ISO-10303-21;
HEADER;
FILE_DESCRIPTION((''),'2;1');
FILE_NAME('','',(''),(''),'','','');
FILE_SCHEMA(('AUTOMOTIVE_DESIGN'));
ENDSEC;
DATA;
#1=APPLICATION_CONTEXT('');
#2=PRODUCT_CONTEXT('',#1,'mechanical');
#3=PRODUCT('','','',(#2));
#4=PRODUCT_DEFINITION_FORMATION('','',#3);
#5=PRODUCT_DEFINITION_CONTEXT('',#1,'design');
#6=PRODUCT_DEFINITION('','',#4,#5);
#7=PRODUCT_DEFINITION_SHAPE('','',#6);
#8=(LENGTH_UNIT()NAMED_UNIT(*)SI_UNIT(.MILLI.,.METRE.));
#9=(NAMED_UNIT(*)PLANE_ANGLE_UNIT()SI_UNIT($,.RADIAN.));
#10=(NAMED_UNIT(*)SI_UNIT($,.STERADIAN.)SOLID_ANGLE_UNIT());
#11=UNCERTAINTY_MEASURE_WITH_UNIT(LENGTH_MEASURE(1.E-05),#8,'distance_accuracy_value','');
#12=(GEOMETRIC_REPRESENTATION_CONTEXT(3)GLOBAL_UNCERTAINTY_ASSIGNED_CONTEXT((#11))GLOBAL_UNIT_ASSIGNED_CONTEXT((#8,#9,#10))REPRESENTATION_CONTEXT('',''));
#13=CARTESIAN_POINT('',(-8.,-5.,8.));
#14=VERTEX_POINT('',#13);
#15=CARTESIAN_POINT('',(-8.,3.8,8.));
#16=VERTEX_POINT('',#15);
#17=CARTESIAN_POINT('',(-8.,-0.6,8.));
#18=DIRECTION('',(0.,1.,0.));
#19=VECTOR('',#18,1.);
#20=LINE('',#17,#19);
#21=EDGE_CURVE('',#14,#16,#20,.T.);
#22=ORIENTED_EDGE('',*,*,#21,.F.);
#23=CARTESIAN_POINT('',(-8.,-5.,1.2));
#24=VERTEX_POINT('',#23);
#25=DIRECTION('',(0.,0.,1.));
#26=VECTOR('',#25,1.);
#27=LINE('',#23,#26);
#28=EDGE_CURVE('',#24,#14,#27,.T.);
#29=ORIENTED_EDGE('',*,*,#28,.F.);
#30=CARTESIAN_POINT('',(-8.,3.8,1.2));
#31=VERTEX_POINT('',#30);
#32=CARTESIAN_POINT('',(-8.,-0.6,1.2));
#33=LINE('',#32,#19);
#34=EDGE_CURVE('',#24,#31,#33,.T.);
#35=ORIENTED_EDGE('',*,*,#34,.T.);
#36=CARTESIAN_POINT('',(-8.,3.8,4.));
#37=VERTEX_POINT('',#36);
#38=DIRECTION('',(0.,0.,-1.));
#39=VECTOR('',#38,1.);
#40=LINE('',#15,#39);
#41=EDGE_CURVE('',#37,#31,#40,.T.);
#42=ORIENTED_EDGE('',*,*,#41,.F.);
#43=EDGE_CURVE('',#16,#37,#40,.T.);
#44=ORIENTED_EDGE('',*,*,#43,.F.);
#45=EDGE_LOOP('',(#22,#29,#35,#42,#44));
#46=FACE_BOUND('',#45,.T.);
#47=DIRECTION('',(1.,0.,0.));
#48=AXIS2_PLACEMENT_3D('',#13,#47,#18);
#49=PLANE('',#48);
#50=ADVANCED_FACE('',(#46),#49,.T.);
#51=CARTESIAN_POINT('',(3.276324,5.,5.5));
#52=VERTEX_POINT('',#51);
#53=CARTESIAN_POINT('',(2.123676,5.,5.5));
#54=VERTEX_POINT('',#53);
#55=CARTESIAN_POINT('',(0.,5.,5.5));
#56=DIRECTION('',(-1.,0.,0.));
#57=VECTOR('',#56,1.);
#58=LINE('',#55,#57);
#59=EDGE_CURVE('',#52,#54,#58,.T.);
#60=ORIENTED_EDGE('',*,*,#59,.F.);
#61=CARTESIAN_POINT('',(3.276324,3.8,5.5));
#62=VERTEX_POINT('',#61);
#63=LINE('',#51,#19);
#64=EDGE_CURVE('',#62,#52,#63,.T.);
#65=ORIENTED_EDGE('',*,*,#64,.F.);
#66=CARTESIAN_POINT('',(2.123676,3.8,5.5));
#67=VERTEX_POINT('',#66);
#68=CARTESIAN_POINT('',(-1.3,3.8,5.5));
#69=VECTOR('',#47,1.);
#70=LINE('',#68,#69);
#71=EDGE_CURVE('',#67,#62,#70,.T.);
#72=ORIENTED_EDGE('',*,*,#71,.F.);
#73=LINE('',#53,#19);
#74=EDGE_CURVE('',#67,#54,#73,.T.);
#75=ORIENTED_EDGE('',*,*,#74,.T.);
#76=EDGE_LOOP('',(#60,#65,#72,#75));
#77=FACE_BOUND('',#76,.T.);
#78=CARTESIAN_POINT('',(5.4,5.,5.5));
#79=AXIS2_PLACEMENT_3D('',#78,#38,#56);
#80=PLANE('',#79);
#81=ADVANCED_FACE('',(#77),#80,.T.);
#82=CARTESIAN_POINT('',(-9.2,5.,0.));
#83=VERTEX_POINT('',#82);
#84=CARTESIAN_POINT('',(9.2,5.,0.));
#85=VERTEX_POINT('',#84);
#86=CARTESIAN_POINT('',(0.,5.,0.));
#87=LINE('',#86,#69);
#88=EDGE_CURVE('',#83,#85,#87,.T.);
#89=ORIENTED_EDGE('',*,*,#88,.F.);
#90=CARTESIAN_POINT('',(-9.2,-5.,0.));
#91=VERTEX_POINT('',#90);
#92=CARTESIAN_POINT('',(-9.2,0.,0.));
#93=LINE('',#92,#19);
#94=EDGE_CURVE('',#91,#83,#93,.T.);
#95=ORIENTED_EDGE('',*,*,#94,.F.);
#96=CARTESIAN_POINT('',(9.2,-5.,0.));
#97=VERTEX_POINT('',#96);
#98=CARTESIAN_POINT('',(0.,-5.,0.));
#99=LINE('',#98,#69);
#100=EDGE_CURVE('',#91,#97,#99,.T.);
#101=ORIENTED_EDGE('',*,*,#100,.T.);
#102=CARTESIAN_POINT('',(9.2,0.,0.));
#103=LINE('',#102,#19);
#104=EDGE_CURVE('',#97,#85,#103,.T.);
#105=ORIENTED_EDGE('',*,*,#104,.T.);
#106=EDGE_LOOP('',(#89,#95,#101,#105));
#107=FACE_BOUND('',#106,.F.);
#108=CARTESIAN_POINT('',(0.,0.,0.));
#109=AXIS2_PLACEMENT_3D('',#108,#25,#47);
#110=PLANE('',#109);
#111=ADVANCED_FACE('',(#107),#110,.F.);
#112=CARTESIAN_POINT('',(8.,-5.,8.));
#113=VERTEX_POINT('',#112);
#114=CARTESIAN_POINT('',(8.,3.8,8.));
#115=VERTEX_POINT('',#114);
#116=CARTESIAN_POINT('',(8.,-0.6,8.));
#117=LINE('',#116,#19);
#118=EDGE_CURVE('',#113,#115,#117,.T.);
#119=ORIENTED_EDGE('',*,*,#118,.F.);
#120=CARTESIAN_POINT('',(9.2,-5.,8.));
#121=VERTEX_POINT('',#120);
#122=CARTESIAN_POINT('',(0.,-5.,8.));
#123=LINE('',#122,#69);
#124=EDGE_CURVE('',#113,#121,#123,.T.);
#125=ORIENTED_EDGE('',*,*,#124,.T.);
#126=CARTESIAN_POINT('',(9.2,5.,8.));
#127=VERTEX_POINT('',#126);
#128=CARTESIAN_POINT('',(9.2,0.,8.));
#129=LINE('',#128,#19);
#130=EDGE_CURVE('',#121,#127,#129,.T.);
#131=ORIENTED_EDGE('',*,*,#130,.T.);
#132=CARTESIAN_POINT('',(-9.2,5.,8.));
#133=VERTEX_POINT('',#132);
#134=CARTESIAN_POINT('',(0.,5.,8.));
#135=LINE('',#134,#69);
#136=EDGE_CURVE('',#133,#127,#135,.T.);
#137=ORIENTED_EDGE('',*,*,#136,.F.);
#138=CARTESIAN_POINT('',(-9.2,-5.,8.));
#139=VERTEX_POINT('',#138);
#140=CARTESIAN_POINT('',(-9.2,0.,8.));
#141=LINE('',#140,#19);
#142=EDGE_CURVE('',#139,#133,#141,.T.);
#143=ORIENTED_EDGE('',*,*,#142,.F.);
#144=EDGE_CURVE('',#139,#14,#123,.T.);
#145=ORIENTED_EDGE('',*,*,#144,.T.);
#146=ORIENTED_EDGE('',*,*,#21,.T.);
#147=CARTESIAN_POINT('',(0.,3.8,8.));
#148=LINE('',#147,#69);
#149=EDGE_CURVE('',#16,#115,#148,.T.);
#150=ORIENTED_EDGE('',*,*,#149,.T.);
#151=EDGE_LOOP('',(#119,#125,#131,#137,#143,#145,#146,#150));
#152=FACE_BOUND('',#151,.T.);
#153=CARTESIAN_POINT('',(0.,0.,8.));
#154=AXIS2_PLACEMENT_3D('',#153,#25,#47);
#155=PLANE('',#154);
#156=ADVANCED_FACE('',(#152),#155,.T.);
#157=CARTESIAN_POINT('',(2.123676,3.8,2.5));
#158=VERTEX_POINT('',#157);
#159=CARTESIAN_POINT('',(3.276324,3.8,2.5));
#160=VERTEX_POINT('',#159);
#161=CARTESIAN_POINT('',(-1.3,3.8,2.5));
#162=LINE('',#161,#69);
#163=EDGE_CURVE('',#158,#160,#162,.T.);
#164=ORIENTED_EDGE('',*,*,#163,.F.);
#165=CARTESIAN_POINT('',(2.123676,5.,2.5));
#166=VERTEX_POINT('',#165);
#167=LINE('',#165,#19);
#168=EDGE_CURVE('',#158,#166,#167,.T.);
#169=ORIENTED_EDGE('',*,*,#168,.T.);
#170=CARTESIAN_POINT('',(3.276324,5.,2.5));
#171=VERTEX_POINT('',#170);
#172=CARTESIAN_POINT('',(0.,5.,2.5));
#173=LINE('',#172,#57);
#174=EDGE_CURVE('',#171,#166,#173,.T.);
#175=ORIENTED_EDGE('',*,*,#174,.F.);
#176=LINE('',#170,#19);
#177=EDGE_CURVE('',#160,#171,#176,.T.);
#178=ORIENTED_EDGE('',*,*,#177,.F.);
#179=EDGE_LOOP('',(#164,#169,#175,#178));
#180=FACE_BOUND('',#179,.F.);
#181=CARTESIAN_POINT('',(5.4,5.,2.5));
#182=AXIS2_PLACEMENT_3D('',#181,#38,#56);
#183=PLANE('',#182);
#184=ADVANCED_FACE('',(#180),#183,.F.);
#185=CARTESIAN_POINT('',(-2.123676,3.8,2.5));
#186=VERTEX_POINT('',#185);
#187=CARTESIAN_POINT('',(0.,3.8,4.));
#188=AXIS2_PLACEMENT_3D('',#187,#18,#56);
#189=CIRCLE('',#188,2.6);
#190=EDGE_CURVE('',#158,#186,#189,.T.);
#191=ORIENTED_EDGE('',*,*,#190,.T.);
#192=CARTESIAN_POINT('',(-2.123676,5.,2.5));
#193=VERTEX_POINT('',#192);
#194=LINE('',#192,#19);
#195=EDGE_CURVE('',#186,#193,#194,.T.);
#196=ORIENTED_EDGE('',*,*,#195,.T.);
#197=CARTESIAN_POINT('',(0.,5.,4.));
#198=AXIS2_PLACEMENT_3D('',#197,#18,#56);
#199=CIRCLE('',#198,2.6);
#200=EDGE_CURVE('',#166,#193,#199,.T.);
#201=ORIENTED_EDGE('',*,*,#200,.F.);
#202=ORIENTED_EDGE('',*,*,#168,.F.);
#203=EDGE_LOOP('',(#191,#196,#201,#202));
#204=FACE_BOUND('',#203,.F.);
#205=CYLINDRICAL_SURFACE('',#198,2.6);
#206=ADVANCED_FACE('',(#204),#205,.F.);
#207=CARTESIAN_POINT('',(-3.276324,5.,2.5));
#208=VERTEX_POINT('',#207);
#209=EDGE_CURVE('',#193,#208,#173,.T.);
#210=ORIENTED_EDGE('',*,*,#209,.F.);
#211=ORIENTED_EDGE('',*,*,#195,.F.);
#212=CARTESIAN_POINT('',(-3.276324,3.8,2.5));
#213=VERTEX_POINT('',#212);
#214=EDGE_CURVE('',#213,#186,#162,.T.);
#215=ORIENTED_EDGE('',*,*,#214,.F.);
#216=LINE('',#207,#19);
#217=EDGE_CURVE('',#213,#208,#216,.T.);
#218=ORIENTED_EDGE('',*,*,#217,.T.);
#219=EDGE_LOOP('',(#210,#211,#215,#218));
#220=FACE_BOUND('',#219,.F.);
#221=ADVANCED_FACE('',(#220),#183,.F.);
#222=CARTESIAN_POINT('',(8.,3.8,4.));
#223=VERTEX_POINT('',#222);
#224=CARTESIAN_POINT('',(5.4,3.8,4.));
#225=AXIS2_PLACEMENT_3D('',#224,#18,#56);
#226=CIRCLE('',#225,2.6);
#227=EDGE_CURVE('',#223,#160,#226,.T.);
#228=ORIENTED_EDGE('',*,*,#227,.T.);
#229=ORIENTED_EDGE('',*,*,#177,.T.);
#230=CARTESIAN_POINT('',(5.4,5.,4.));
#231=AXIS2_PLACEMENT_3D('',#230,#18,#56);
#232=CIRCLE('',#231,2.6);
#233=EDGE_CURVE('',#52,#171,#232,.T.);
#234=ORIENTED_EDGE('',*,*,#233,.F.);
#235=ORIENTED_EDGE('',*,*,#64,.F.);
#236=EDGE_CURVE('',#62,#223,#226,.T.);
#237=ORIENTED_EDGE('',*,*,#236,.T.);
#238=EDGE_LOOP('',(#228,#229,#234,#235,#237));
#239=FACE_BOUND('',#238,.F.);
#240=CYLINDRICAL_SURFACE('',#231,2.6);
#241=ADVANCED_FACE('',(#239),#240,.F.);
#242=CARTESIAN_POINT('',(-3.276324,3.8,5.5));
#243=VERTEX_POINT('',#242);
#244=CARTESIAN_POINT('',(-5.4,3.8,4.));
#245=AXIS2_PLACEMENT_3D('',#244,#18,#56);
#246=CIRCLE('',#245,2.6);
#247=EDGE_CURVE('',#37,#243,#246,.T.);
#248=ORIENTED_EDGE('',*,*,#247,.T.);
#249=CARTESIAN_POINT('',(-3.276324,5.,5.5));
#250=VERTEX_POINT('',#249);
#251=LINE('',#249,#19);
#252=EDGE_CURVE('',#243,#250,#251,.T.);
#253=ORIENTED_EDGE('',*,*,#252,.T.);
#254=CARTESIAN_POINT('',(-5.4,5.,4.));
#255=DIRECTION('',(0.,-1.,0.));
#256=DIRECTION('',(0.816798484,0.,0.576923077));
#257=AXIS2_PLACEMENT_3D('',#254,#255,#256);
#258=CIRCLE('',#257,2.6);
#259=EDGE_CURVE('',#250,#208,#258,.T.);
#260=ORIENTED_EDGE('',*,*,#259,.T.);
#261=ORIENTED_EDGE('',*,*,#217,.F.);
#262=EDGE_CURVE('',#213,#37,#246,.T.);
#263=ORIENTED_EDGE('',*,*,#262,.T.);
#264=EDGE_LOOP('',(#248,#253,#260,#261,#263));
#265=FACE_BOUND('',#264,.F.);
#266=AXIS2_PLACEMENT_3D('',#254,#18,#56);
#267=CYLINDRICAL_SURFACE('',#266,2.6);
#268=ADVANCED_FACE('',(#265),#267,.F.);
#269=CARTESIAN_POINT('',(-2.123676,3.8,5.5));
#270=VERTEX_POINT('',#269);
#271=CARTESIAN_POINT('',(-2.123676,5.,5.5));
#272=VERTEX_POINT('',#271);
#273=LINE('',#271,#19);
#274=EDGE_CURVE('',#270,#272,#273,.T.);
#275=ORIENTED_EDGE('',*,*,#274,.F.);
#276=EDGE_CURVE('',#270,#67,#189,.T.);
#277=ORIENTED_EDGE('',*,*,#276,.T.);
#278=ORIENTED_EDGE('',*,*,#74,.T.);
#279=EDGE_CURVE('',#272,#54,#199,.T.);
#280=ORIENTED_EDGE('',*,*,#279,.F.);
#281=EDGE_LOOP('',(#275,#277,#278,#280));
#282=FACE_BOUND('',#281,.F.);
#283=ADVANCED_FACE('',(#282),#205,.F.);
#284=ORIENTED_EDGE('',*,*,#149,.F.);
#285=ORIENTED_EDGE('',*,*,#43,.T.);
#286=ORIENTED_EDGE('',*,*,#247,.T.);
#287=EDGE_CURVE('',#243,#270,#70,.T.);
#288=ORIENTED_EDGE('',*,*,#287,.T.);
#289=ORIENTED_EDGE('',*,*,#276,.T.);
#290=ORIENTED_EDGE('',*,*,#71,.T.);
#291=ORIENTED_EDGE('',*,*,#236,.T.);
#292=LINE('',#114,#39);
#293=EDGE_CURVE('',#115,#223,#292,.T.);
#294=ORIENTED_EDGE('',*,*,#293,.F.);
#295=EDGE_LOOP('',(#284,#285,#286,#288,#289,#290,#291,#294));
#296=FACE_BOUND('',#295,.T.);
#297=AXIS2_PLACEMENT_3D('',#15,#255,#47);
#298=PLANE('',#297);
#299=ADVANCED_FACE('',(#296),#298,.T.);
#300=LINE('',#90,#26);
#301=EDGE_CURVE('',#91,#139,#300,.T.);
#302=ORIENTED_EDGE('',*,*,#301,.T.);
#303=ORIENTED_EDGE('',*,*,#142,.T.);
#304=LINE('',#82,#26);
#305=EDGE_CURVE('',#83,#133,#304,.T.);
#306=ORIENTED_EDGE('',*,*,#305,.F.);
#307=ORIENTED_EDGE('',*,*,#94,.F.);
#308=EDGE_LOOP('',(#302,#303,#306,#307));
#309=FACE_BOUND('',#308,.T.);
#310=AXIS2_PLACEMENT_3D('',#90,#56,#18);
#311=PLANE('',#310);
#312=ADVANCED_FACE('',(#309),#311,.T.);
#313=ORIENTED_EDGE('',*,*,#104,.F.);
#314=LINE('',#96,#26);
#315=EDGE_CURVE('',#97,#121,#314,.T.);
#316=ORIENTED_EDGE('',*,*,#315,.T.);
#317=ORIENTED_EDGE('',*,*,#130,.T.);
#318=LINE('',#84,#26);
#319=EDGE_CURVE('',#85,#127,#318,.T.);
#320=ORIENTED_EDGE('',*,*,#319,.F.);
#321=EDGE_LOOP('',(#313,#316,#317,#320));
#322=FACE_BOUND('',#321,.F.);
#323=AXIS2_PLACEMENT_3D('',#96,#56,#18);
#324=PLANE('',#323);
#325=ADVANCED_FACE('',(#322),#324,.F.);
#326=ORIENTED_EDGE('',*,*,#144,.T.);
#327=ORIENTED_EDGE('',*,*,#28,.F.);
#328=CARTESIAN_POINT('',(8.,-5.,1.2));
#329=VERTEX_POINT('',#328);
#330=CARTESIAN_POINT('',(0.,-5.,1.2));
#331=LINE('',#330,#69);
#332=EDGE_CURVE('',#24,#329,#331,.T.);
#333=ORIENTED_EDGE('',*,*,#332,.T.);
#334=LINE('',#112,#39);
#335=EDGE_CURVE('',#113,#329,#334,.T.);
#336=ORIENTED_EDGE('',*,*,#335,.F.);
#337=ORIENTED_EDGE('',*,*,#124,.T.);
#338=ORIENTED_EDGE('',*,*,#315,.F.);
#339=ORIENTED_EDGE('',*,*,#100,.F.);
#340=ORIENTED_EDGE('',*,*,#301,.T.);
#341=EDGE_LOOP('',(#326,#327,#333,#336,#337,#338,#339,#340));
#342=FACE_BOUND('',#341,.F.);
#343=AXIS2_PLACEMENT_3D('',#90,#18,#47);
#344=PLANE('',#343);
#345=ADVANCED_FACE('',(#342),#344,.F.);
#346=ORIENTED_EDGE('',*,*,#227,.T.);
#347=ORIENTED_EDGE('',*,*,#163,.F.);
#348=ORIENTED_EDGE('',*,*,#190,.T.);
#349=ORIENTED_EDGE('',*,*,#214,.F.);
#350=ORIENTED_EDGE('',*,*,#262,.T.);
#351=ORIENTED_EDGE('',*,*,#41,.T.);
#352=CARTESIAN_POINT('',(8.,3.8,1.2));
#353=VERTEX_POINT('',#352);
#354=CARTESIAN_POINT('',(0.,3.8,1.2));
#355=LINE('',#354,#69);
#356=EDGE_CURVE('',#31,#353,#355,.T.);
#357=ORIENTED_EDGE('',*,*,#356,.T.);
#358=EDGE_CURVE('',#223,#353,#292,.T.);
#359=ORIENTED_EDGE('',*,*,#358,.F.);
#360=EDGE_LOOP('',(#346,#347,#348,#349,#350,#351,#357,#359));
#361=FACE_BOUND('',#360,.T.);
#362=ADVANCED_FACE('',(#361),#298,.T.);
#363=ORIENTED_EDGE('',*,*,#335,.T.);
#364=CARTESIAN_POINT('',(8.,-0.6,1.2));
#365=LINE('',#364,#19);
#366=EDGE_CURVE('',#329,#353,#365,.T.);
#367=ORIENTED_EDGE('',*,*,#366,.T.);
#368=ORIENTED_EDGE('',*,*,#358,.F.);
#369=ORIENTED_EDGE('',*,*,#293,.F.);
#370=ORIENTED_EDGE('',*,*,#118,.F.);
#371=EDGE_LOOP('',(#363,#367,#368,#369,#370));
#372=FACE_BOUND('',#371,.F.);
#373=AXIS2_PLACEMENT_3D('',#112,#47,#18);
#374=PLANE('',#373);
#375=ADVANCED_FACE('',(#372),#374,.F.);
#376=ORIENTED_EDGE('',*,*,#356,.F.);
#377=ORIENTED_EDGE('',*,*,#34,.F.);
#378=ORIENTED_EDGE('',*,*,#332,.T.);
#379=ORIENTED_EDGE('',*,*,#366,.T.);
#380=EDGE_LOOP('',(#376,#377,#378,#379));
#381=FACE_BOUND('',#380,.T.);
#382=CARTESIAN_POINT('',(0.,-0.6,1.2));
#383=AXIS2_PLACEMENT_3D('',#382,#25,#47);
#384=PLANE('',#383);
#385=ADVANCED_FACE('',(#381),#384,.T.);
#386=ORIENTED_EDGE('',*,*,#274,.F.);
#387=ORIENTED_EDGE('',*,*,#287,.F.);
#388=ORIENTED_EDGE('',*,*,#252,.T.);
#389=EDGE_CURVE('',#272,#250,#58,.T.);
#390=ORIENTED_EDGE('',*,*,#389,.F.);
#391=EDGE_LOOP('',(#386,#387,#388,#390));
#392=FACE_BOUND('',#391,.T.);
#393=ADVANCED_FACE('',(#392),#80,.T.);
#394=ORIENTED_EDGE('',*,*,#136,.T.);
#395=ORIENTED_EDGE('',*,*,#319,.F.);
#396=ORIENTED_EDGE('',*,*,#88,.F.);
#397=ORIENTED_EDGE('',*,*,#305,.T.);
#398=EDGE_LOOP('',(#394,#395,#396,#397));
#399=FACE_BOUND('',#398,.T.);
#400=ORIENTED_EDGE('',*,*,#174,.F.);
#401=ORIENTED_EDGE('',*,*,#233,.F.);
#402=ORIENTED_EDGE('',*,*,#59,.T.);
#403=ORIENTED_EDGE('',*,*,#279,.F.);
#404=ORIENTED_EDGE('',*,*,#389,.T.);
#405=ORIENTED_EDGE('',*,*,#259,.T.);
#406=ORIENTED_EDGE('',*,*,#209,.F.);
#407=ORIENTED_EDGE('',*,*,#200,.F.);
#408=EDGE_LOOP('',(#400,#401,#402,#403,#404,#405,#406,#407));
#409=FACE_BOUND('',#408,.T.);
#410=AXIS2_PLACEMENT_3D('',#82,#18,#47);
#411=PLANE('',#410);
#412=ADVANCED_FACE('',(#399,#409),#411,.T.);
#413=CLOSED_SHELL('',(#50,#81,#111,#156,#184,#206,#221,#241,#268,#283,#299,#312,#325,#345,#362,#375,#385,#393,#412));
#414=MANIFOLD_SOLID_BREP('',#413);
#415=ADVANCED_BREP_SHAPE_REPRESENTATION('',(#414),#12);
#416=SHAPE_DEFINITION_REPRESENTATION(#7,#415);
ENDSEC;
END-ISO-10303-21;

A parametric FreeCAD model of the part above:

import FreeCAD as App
import Part
import Sketcher

doc = App.newDocument("Part")
params = doc.addObject("Spreadsheet::Sheet", "Params")
for row, (alias, value) in enumerate([
    ("sketch1_height", "10 mm"),
    ("sketch1_width", "18.4 mm"),
    ("pad1_length", "8 mm"),
    ("sketch2_diameter", "5.2 mm"),
    ("pocket1_length", "10 mm"),
    ("sketch3_width", "16 mm"),
    ("sketch3_height", "8.8 mm"),
    ("pocket2_length", "6.8 mm"),
    ("sketch4_height", "3 mm"),
    ("sketch4_width", "10.8 mm"),
    ("pocket3_length", "5 mm"),
], start=1):
    params.set(f"A{row}", alias)
    params.set(f"B{row}", "=" + value)
    params.setAlias(f"B{row}", alias)

body = doc.addObject("PartDesign::Body", "Body")

# Sketch on XY plane
sketch1 = doc.addObject("Sketcher::SketchObject", "Sketch")
body.addObject(sketch1)
sketch1.AttachmentSupport = (doc.XY_Plane, [""])
sketch1.MapMode = "FlatFace"
sketch1.addGeometry(Part.LineSegment(App.Vector(-9.2, 5, 0), App.Vector(-9.2, -5, 0)), False)
sketch1.addGeometry(Part.LineSegment(App.Vector(-9.2, -5, 0), App.Vector(9.2, -5, 0)), False)
sketch1.addGeometry(Part.LineSegment(App.Vector(9.2, -5, 0), App.Vector(9.2, 5, 0)), False)
sketch1.addGeometry(Part.LineSegment(App.Vector(9.2, 5, 0), App.Vector(-9.2, 5, 0)), False)
sketch1.addConstraint(Sketcher.Constraint("Coincident", 0, 2, 1, 1))
sketch1.addConstraint(Sketcher.Constraint("Coincident", 1, 2, 2, 1))
sketch1.addConstraint(Sketcher.Constraint("Coincident", 2, 2, 3, 1))
sketch1.addConstraint(Sketcher.Constraint("Coincident", 3, 2, 0, 1))
sketch1.addConstraint(Sketcher.Constraint("Vertical", 0))
sketch1.addConstraint(Sketcher.Constraint("Horizontal", 1))
sketch1.addConstraint(Sketcher.Constraint("Vertical", 2))
sketch1.addConstraint(Sketcher.Constraint("Horizontal", 3))
sketch1.addConstraint(Sketcher.Constraint("Symmetric", 0, 2, 2, 2, -1, 1))
sketch1.addConstraint(Sketcher.Constraint("DistanceY", 0, 2, 0, 1, 10.0))
sketch1.addConstraint(Sketcher.Constraint("DistanceX", 1, 1, 1, 2, 18.4))
sketch1.setExpression("Constraints[9]", "Params.sketch1_height")
sketch1.setExpression("Constraints[10]", "Params.sketch1_width")
pad1 = doc.addObject("PartDesign::Pad", "Pad")
body.addObject(pad1)
pad1.Profile = sketch1
pad1.setExpression("Length", "Params.pad1_length")

# Sketch on XZ plane
sketch2 = doc.addObject("Sketcher::SketchObject", "Sketch001")
body.addObject(sketch2)
sketch2.AttachmentSupport = (doc.XZ_Plane, [""])
sketch2.MapMode = "FlatFace"
sketch2.AttachmentOffset = App.Placement(App.Vector(0, 0, -5), App.Rotation())
sketch2.addGeometry(Part.Circle(App.Vector(5.4, 4, 0), App.Vector(0, 0, 1), 2.6), False)
sketch2.addGeometry(Part.Circle(App.Vector(0, 4, 0), App.Vector(0, 0, 1), 2.6), False)
sketch2.addGeometry(Part.Circle(App.Vector(-5.4, 4, 0), App.Vector(0, 0, 1), 2.6), False)
sketch2.addConstraint(Sketcher.Constraint("Equal", 0, 1))
sketch2.addConstraint(Sketcher.Constraint("Equal", 1, 2))
sketch2.addConstraint(Sketcher.Constraint("Symmetric", 0, 3, 2, 3, -2))
sketch2.addConstraint(Sketcher.Constraint("PointOnObject", 1, 3, -2))
sketch2.addConstraint(Sketcher.Constraint("Horizontal", 0, 3, 1, 3))
sketch2.addConstraint(Sketcher.Constraint("Diameter", 0, 5.2))
sketch2.addConstraint(Sketcher.Constraint("DistanceY", -1, 1, 0, 3, 4.0))
sketch2.addConstraint(Sketcher.Constraint("DistanceX", -1, 1, 0, 3, 5.4))
sketch2.setExpression("Constraints[5]", "Params.sketch2_diameter")
pocket1 = doc.addObject("PartDesign::Pocket", "Pocket")
body.addObject(pocket1)
pocket1.Profile = sketch2
pocket1.setExpression("Length", "Params.pocket1_length")
pocket1.Reversed = True

# Sketch on XY plane
sketch3 = doc.addObject("Sketcher::SketchObject", "Sketch002")
body.addObject(sketch3)
sketch3.AttachmentSupport = (doc.XY_Plane, [""])
sketch3.MapMode = "FlatFace"
sketch3.AttachmentOffset = App.Placement(App.Vector(0, 0, 8), App.Rotation())
sketch3.addGeometry(Part.LineSegment(App.Vector(-8, 3.8, 0), App.Vector(-8, -5, 0)), False)
sketch3.addGeometry(Part.LineSegment(App.Vector(-8, -5, 0), App.Vector(8, -5, 0)), False)
sketch3.addGeometry(Part.LineSegment(App.Vector(8, -5, 0), App.Vector(8, 3.8, 0)), False)
sketch3.addGeometry(Part.LineSegment(App.Vector(8, 3.8, 0), App.Vector(-8, 3.8, 0)), False)
sketch3.addConstraint(Sketcher.Constraint("Coincident", 0, 2, 1, 1))
sketch3.addConstraint(Sketcher.Constraint("Coincident", 1, 2, 2, 1))
sketch3.addConstraint(Sketcher.Constraint("Coincident", 2, 2, 3, 1))
sketch3.addConstraint(Sketcher.Constraint("Coincident", 3, 2, 0, 1))
sketch3.addConstraint(Sketcher.Constraint("Vertical", 0))
sketch3.addConstraint(Sketcher.Constraint("Horizontal", 1))
sketch3.addConstraint(Sketcher.Constraint("Vertical", 2))
sketch3.addConstraint(Sketcher.Constraint("Horizontal", 3))
sketch3.addConstraint(Sketcher.Constraint("DistanceX", 1, 1, 1, 2, 16.0))
sketch3.addConstraint(Sketcher.Constraint("DistanceY", 0, 2, 0, 1, 8.8))
sketch3.addConstraint(Sketcher.Constraint("DistanceX", 0, 2, -1, 1, 8.0))
sketch3.addConstraint(Sketcher.Constraint("DistanceY", 0, 2, -1, 1, 5.0))
sketch3.setExpression("Constraints[8]", "Params.sketch3_width")
sketch3.setExpression("Constraints[9]", "Params.sketch3_height")
pocket2 = doc.addObject("PartDesign::Pocket", "Pocket001")
body.addObject(pocket2)
pocket2.Profile = sketch3
pocket2.setExpression("Length", "Params.pocket2_length")

# Sketch on XZ plane
sketch4 = doc.addObject("Sketcher::SketchObject", "Sketch003")
body.addObject(sketch4)
sketch4.AttachmentSupport = (doc.XZ_Plane, [""])
sketch4.MapMode = "FlatFace"
sketch4.AttachmentOffset = App.Placement(App.Vector(0, 0, -5), App.Rotation())
sketch4.addGeometry(Part.LineSegment(App.Vector(5.4, 5.5, 0), App.Vector(5.4, 2.5, 0)), False)
sketch4.addGeometry(Part.LineSegment(App.Vector(5.4, 2.5, 0), App.Vector(-5.4, 2.5, 0)), False)
sketch4.addGeometry(Part.LineSegment(App.Vector(-5.4, 2.5, 0), App.Vector(-5.4, 5.5, 0)), False)
sketch4.addGeometry(Part.LineSegment(App.Vector(-5.4, 5.5, 0), App.Vector(5.4, 5.5, 0)), False)
sketch4.addConstraint(Sketcher.Constraint("Coincident", 0, 2, 1, 1))
sketch4.addConstraint(Sketcher.Constraint("Coincident", 1, 2, 2, 1))
sketch4.addConstraint(Sketcher.Constraint("Coincident", 2, 2, 3, 1))
sketch4.addConstraint(Sketcher.Constraint("Coincident", 3, 2, 0, 1))
sketch4.addConstraint(Sketcher.Constraint("Vertical", 0))
sketch4.addConstraint(Sketcher.Constraint("Horizontal", 1))
sketch4.addConstraint(Sketcher.Constraint("Vertical", 2))
sketch4.addConstraint(Sketcher.Constraint("Horizontal", 3))
sketch4.addConstraint(Sketcher.Constraint("DistanceY", 0, 2, 0, 1, 3.0))
sketch4.addConstraint(Sketcher.Constraint("DistanceX", 1, 2, 1, 1, 10.8))
sketch4.addConstraint(Sketcher.Constraint("DistanceX", -1, 1, 0, 2, 5.4))
sketch4.addConstraint(Sketcher.Constraint("DistanceY", -1, 1, 0, 2, 2.5))
sketch4.setExpression("Constraints[8]", "Params.sketch4_height")
sketch4.setExpression("Constraints[9]", "Params.sketch4_width")
pocket3 = doc.addObject("PartDesign::Pocket", "Pocket002")
body.addObject(pocket3)
pocket3.Profile = sketch4
pocket3.setExpression("Length", "Params.pocket3_length")
pocket3.Reversed = True

doc.recompute()
